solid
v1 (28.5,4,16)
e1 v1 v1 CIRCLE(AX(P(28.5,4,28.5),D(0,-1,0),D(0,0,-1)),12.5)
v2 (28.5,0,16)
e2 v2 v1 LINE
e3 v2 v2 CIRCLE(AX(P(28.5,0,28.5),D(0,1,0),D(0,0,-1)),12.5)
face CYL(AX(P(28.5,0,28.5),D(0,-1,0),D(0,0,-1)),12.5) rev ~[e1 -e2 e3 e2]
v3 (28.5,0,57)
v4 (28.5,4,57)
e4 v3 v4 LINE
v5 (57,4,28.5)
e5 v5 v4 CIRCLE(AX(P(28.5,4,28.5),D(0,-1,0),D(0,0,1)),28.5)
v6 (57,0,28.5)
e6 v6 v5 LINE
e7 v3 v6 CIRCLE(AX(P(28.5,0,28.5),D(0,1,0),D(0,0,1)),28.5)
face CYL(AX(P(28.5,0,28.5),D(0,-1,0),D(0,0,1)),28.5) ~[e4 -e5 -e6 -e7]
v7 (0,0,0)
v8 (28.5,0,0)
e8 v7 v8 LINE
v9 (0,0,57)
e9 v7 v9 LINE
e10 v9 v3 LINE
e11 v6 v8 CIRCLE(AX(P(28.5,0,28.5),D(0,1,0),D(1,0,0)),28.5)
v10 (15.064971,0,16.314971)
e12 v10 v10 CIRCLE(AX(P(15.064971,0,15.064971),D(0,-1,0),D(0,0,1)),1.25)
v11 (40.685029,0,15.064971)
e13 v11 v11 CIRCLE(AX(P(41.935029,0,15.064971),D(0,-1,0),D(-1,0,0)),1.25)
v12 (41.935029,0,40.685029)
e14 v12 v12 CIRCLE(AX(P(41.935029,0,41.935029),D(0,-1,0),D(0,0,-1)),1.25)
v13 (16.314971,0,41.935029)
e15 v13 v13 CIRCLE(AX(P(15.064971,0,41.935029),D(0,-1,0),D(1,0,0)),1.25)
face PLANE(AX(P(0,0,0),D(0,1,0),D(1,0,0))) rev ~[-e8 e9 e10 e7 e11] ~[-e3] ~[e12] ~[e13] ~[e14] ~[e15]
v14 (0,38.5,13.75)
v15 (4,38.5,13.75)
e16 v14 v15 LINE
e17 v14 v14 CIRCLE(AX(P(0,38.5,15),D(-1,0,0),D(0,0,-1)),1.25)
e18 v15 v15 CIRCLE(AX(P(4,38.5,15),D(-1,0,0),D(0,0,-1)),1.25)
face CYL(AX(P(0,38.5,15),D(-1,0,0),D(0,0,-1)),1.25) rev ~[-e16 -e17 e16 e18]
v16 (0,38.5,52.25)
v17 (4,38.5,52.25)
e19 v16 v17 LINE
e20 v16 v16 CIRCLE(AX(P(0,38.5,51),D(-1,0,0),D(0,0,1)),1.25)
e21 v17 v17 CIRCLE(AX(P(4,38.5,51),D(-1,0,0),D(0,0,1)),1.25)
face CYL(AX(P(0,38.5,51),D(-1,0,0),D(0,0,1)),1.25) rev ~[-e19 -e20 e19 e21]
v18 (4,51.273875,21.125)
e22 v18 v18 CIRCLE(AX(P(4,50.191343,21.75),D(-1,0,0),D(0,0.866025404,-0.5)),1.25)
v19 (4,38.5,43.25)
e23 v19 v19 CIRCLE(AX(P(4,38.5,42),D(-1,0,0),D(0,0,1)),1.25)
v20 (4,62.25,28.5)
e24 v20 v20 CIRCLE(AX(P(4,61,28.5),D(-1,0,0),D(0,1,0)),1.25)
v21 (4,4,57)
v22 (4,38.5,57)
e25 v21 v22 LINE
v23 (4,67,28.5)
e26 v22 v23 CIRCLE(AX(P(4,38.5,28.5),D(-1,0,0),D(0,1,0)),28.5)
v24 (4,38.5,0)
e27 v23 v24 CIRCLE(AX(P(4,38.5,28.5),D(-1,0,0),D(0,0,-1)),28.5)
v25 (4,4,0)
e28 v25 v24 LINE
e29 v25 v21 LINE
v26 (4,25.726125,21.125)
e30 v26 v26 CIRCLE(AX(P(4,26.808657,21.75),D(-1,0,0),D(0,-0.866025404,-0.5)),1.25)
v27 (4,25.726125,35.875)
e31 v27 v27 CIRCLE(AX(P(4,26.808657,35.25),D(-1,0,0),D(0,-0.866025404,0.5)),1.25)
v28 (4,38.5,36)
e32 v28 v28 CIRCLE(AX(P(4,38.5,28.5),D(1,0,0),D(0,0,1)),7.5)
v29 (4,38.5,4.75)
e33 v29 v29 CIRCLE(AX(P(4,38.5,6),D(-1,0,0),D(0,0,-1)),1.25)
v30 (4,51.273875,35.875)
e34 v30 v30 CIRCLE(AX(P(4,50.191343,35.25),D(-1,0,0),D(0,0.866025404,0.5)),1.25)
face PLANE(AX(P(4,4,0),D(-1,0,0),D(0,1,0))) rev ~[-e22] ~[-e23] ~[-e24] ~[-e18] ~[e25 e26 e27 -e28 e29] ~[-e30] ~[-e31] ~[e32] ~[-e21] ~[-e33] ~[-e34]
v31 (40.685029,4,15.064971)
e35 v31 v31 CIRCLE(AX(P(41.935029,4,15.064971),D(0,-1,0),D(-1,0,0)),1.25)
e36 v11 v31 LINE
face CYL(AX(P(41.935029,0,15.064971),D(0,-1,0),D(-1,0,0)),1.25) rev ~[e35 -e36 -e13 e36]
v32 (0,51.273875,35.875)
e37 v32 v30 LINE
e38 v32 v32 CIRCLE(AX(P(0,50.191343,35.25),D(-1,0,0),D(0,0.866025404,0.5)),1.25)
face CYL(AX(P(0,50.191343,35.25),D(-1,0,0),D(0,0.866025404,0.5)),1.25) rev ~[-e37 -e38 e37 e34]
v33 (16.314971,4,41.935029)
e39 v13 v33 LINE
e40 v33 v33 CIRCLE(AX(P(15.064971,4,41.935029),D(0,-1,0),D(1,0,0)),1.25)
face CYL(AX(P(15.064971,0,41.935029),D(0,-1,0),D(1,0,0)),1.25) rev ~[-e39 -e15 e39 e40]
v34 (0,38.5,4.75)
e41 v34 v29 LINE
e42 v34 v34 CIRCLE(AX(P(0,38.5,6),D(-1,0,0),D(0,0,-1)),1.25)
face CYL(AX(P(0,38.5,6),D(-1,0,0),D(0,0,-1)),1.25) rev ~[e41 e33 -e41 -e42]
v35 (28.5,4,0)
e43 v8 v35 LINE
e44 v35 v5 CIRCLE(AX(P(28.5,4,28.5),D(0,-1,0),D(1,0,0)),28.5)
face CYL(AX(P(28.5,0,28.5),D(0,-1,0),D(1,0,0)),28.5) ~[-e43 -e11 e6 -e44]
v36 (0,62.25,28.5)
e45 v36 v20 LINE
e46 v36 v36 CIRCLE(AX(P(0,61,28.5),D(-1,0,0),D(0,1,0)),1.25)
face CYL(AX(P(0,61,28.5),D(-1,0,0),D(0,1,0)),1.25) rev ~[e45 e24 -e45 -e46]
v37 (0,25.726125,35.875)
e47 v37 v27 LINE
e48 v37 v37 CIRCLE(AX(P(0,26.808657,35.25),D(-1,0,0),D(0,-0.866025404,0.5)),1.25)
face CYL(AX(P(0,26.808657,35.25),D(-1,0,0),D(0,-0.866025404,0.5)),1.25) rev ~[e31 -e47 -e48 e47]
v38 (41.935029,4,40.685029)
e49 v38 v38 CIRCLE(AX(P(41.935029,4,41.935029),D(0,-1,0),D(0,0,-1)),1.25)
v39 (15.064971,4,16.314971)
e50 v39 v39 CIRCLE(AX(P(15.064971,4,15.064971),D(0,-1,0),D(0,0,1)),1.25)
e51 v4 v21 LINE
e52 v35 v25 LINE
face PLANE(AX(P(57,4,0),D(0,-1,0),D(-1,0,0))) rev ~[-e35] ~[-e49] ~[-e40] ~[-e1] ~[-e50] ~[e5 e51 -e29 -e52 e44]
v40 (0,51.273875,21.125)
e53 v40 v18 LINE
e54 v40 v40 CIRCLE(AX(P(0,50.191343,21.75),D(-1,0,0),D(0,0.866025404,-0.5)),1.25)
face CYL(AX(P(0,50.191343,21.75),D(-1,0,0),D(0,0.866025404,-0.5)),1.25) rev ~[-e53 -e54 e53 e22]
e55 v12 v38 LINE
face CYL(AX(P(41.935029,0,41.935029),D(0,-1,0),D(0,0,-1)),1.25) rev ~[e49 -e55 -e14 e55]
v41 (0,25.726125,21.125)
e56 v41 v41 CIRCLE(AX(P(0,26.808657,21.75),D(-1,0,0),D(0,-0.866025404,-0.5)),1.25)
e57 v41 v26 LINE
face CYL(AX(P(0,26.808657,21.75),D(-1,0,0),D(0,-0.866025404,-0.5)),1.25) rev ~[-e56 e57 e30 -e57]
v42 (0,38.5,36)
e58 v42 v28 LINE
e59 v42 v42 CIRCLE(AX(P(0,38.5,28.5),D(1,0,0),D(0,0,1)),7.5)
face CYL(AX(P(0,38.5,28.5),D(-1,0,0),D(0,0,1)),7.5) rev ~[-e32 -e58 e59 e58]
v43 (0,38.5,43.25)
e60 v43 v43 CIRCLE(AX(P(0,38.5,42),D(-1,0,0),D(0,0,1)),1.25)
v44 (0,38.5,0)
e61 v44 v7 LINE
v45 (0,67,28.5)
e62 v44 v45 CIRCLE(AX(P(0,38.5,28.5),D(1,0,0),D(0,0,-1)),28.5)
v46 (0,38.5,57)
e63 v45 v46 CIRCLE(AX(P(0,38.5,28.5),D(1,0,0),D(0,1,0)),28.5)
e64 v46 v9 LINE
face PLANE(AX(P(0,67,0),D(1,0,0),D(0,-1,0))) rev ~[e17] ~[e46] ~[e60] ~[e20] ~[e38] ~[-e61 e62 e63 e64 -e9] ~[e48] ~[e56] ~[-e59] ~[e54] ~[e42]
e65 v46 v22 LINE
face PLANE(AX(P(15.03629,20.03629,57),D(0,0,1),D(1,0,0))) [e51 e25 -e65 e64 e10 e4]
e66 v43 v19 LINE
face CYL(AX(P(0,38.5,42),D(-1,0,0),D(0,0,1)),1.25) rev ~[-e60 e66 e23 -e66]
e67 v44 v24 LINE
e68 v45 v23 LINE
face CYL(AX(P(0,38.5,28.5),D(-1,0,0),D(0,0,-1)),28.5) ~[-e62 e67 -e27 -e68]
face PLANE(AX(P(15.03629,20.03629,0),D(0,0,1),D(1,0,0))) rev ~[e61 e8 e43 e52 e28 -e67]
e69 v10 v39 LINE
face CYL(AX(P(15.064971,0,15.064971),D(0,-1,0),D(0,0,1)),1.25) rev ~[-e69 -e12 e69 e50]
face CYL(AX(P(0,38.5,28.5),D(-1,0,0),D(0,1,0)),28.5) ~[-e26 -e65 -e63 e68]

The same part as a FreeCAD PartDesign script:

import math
import FreeCAD as App
import Part
import Sketcher


def add_polygon(sketch, points):
    """Adds a closed chain of lines whose ends are joined by coincident constraints."""
    first, n = sketch.GeometryCount, len(points)
    for a, b in zip(points, points[1:] + points[:1]):
        sketch.addGeometry(Part.LineSegment(App.Vector(*a, 0), App.Vector(*b, 0)), False)
    for i in range(n):
        sketch.addConstraint(Sketcher.Constraint("Coincident", first + i, 2, first + (i + 1) % n, 1))

doc = App.newDocument("Part")
body = doc.addObject("PartDesign::Body", "Body")

# Sketch on XY plane
sketch1 = body.newObject("Sketcher::SketchObject", "Sketch")
sketch1.AttachmentSupport = (doc.getObject("XY_Plane"), [""])
sketch1.MapMode = "FlatFace"
add_polygon(sketch1, [(0, 67), (0, 0), (57, 0), (57, 4), (4, 4), (4, 67)])  # lines 0-5
sketch1.addConstraint(Sketcher.Constraint("Vertical", 0))
sketch1.addConstraint(Sketcher.Constraint("Horizontal", 1))
sketch1.addConstraint(Sketcher.Constraint("Vertical", 2))
sketch1.addConstraint(Sketcher.Constraint("Horizontal", 3))
sketch1.addConstraint(Sketcher.Constraint("Vertical", 4))
sketch1.addConstraint(Sketcher.Constraint("Horizontal", 5))
sketch1.addConstraint(Sketcher.Constraint("Coincident", 0, 2, -1, 1))
sketch1.addConstraint(Sketcher.Constraint("Equal", 5, 2))
sketch1.addConstraint(Sketcher.Constraint("DistanceX", 1, 1, 1, 2, 57.0))
sketch1.addConstraint(Sketcher.Constraint("DistanceX", 3, 2, 3, 1, 53.0))
sketch1.addConstraint(Sketcher.Constraint("DistanceY", 0, 2, 0, 1, 67.0))
pad1 = body.newObject("PartDesign::Pad", "Pad")
pad1.Profile = sketch1
pad1.Length = 57

# Sketch on XZ plane
sketch2 = body.newObject("Sketcher::SketchObject", "Sketch001")
sketch2.AttachmentSupport = (doc.getObject("XZ_Plane"), [""])
sketch2.MapMode = "FlatFace"
sketch2.addGeometry(Part.LineSegment(App.Vector(57, 57, 0), App.Vector(28, 57, 0)), False)
sketch2.addGeometry(Part.ArcOfCircle(Part.Circle(App.Vector(29, 29, 0), App.Vector(0, 0, 1), 28), math.radians(0), math.radians(90)), False)
sketch2.addGeometry(Part.LineSegment(App.Vector(57, 28, 0), App.Vector(57, 57, 0)), False)
sketch2.addGeometry(Part.ArcOfCircle(Part.Circle(App.Vector(29, 28, 0), App.Vector(0, 0, 1), 28), math.radians(-90), math.radians(0)), False)
sketch2.addGeometry(Part.LineSegment(App.Vector(28, 0, 0), App.Vector(57, 0, 0)), False)
sketch2.addGeometry(Part.LineSegment(App.Vector(57, 0, 0), App.Vector(57, 28, 0)), False)
sketch2.addConstraint(Sketcher.Constraint("Tangent", 0, 2, 1, 2))
sketch2.addConstraint(Sketcher.Constraint("Tangent", 1, 1, 2, 1))
sketch2.addConstraint(Sketcher.Constraint("Coincident", 2, 2, 0, 1))
sketch2.addConstraint(Sketcher.Constraint("Tangent", 3, 1, 4, 1))
sketch2.addConstraint(Sketcher.Constraint("Coincident", 4, 2, 5, 1))
sketch2.addConstraint(Sketcher.Constraint("Tangent", 5, 2, 3, 2))
sketch2.addConstraint(Sketcher.Constraint("Horizontal", 0))
sketch2.addConstraint(Sketcher.Constraint("Vertical", 2))
sketch2.addConstraint(Sketcher.Constraint("Horizontal", 4))
sketch2.addConstraint(Sketcher.Constraint("Vertical", 5))
sketch2.addConstraint(Sketcher.Constraint("Coincident", 3, 3, 1, 3))
sketch2.addConstraint(Sketcher.Constraint("Equal", 1, 3))
sketch2.addConstraint(Sketcher.Constraint("PointOnObject", 3, 1, -1))
sketch2.addConstraint(Sketcher.Constraint("Radius", 1, 28.5))
sketch2.addConstraint(Sketcher.Constraint("DistanceX", -1, 1, 1, 1, 57.0))
pocket1 = body.newObject("PartDesign::Pocket", "Pocket")
pocket1.Profile = sketch2
pocket1.Length = 57

# Sketch on YZ plane
sketch3 = body.newObject("Sketcher::SketchObject", "Sketch002")
sketch3.AttachmentSupport = (doc.getObject("YZ_Plane"), [""])
sketch3.MapMode = "FlatFace"
sketch3.addGeometry(Part.LineSegment(App.Vector(67, 57, 0), App.Vector(67, 28, 0)), False)
sketch3.addGeometry(Part.ArcOfCircle(Part.Circle(App.Vector(39, 29, 0), App.Vector(0, 0, 1), 28), math.radians(0), math.radians(90)), False)
sketch3.addGeometry(Part.LineSegment(App.Vector(38, 57, 0), App.Vector(67, 57, 0)), False)
sketch3.addGeometry(Part.LineSegment(App.Vector(67, 28, 0), App.Vector(67, 0, 0)), False)
sketch3.addGeometry(Part.LineSegment(App.Vector(67, 0, 0), App.Vector(38, 0, 0)), False)
sketch3.addGeometry(Part.ArcOfCircle(Part.Circle(App.Vector(39, 28, 0), App.Vector(0, 0, 1), 28), math.radians(-90), math.radians(0)), False)
sketch3.addConstraint(Sketcher.Constraint("Tangent", 0, 2, 1, 1))
sketch3.addConstraint(Sketcher.Constraint("Tangent", 1, 2, 2, 1))
sketch3.addConstraint(Sketcher.Constraint("Coincident", 2, 2, 0, 1))
sketch3.addConstraint(Sketcher.Constraint("Coincident", 3, 2, 4, 1))
sketch3.addConstraint(Sketcher.Constraint("Tangent", 4, 2, 5, 1))
sketch3.addConstraint(Sketcher.Constraint("Tangent", 5, 2, 3, 1))
sketch3.addConstraint(Sketcher.Constraint("Vertical", 0))
sketch3.addConstraint(Sketcher.Constraint("Horizontal", 2))
sketch3.addConstraint(Sketcher.Constraint("Vertical", 3))
sketch3.addConstraint(Sketcher.Constraint("Horizontal", 4))
sketch3.addConstraint(Sketcher.Constraint("Coincident", 5, 3, 1, 3))
sketch3.addConstraint(Sketcher.Constraint("Equal", 1, 5))
sketch3.addConstraint(Sketcher.Constraint("PointOnObject", 3, 2, -1))
sketch3.addConstraint(Sketcher.Constraint("Radius", 1, 28.5))
sketch3.addConstraint(Sketcher.Constraint("DistanceX", -1, 1, 0, 2, 67.0))
pocket2 = body.newObject("PartDesign::Pocket", "Pocket001")
pocket2.Profile = sketch3
pocket2.Length = 57
pocket2.Reversed = True

# Sketch on YZ plane
sketch4 = body.newObject("Sketcher::SketchObject", "Sketch003")
sketch4.AttachmentSupport = (doc.getObject("YZ_Plane"), [""])
sketch4.MapMode = "FlatFace"
sketch4.addGeometry(Part.Circle(App.Vector(38.5, 28.5, 0), App.Vector(0, 0, 1), 7.5), False)
sketch4.addGeometry(Part.Circle(App.Vector(38.5, 42, 0), App.Vector(0, 0, 1), 1.2), False)
sketch4.addConstraint(Sketcher.Constraint("Vertical", 0, 3, 1, 3))
sketch4.addConstraint(Sketcher.Constraint("Diameter", 0, 15.0))
sketch4.addConstraint(Sketcher.Constraint("Diameter", 1, 2.5))
sketch4.addConstraint(Sketcher.Constraint("DistanceY", -1, 1, 1, 3, 42.0))
sketch4.addConstraint(Sketcher.Constraint("DistanceX", -1, 1, 0, 3, 38.5))
sketch4.addConstraint(Sketcher.Constraint("DistanceY", -1, 1, 0, 3, 28.5))
pocket3 = body.newObject("PartDesign::Pocket", "Pocket002")
pocket3.Profile = sketch4
pocket3.Length = 57
pocket3.Reversed = True
doc.recompute()

datumline = body.newObject("PartDesign::Line", "DatumLine")
datumline.Placement = App.Placement(App.Vector(0, 38.5, 28.5), App.Rotation(App.Vector(0, 0, 1), App.Vector(1, 0, 0)))
polarpattern = body.newObject("PartDesign::PolarPattern", "PolarPattern")
polarpattern.Originals = [pocket3]
polarpattern.Axis = (datumline, [""])
polarpattern.Angle = 360
polarpattern.Occurrences = 6
body.Tip = polarpattern

# Sketch on XZ plane
sketch5 = body.newObject("Sketcher::SketchObject", "Sketch004")
sketch5.AttachmentSupport = (doc.getObject("XZ_Plane"), [""])
sketch5.MapMode = "FlatFace"
sketch5.addGeometry(Part.Circle(App.Vector(28.5, 28.5, 0), App.Vector(0, 0, 1), 12.5), False)
sketch5.addGeometry(Part.Circle(App.Vector(41.9, 41.9, 0), App.Vector(0, 0, 1), 1.2), False)
sketch5.addConstraint(Sketcher.Constraint("Diameter", 0, 25.0))
sketch5.addConstraint(Sketcher.Constraint("Diameter", 1, 2.5))
sketch5.addConstraint(Sketcher.Constraint("DistanceX", -1, 1, 0, 3, 28.5))
sketch5.addConstraint(Sketcher.Constraint("DistanceY", -1, 1, 0, 3, 28.5))
sketch5.addConstraint(Sketcher.Constraint("DistanceX", -1, 1, 1, 3, 41.935029))
sketch5.addConstraint(Sketcher.Constraint("DistanceY", -1, 1, 1, 3, 41.935029))
pocket4 = body.newObject("PartDesign::Pocket", "Pocket003")
pocket4.Profile = sketch5
pocket4.Length = 57
doc.recompute()

datumline2 = body.newObject("PartDesign::Line", "DatumLine001")
datumline2.Placement = App.Placement(App.Vector(28.5, 0, 28.5), App.Rotation(App.Vector(0, 0, 1), App.Vector(0, 1, 0)))
polarpattern2 = body.newObject("PartDesign::PolarPattern", "PolarPattern001")
polarpattern2.Originals = [pocket4]
polarpattern2.Axis = (datumline2, [""])
polarpattern2.Angle = 360
polarpattern2.Occurrences = 4
body.Tip = polarpattern2

# Sketch on YZ plane
sketch6 = body.newObject("Sketcher::SketchObject", "Sketch005")
sketch6.AttachmentSupport = (doc.getObject("YZ_Plane"), [""])
sketch6.MapMode = "FlatFace"
sketch6.addGeometry(Part.Circle(App.Vector(38.5, 51, 0), App.Vector(0, 0, 1), 1.2), False)
sketch6.addConstraint(Sketcher.Constraint("Diameter", 0, 2.5))
sketch6.addConstraint(Sketcher.Constraint("DistanceY", -1, 1, 0, 3, 51.0))
sketch6.addConstraint(Sketcher.Constraint("DistanceX", -1, 1, 0, 3, 38.5))
pocket5 = body.newObject("PartDesign::Pocket", "Pocket004")
pocket5.Profile = sketch6
pocket5.Length = 10
pocket5.Reversed = True
doc.recompute()

datumline3 = body.newObject("PartDesign::Line", "DatumLine002")
datumline3.Placement = App.Placement(App.Vector(0, 38.5, 28.5), App.Rotation(App.Vector(0, 0, 1), App.Vector(-1, 0, 0)))
polarpattern3 = body.newObject("PartDesign::PolarPattern", "PolarPattern002")
polarpattern3.Originals = [pocket5]
polarpattern3.Axis = (datumline3, [""])
polarpattern3.Angle = 180
polarpattern3.Occurrences = 3
body.Tip = polarpattern3

doc.recompute()
